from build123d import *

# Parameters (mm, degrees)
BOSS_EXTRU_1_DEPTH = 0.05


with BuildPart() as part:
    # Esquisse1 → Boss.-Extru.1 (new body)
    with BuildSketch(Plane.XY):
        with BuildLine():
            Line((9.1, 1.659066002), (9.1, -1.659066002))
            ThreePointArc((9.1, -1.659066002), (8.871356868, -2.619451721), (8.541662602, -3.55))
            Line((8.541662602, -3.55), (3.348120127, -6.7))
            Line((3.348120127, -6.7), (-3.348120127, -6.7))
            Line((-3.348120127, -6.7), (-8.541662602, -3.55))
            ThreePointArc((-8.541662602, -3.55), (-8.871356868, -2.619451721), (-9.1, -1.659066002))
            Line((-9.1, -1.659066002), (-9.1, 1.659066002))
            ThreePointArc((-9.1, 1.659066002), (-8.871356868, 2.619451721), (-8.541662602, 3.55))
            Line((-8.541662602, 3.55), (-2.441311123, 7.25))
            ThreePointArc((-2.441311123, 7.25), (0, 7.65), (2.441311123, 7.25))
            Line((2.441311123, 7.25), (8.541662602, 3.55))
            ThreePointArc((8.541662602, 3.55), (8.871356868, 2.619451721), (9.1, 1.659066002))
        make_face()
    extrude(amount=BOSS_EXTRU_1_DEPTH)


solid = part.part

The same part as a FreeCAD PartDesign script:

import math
import FreeCAD as App
import Part
import Sketcher

V = App.Vector
Q = App.Units.Quantity

doc = App.newDocument("Part")
body = doc.addObject("PartDesign::Body", "Body")

sketch1 = body.newObject("Sketcher::SketchObject", "Sketch")
sketch1.AttachmentSupport = (doc.getObject("XY_Plane"), [""])
sketch1.MapMode = "FlatFace"
sketch1.addGeometry([
    Part.LineSegment(V(9.1, -1.7, 0), V(9.1, 1.7, 0)),
    Part.ArcOfCircle(Part.Circle(V(0, 0, 0), V(0, 0, 1), 9.3), math.radians(10.33), math.radians(22.57)),
    Part.LineSegment(V(8.5, 3.5, 0), V(2.4, 7.2, 0)),
    Part.ArcOfCircle(Part.Circle(V(0, 0, 0), V(0, 0, 1), 7.6), math.radians(71), math.radians(109)),
    Part.LineSegment(V(-2.4, 7.2, 0), V(-8.5, 3.5, 0)),
    Part.ArcOfCircle(Part.Circle(V(0, 0, 0), V(0, 0, 1), 9.3), math.radians(157.43), math.radians(169.67)),
    Part.LineSegment(V(-9.1, 1.7, 0), V(-9.1, -1.7, 0)),
    Part.ArcOfCircle(Part.Circle(V(0, 0, 0), V(0, 0, 1), 9.3), math.radians(-169.67), math.radians(-157.43)),
    Part.LineSegment(V(-8.5, -3.5, 0), V(-3.3, -6.7, 0)),
    Part.LineSegment(V(-3.3, -6.7, 0), V(3.3, -6.7, 0)),
    Part.LineSegment(V(3.3, -6.7, 0), V(8.5, -3.5, 0)),
    Part.ArcOfCircle(Part.Circle(V(0, 0, 0), V(0, 0, 1), 9.3), math.radians(-22.57), math.radians(-10.33)),
], False)
sketch1.addConstraint([
    Sketcher.Constraint("Coincident", 0, 2, 1, 1),
    Sketcher.Constraint("Coincident", 1, 2, 2, 1),
    Sketcher.Constraint("Coincident", 2, 2, 3, 1),
    Sketcher.Constraint("Coincident", 3, 2, 4, 1),
    Sketcher.Constraint("Coincident", 4, 2, 5, 1),
    Sketcher.Constraint("Coincident", 5, 2, 6, 1),
    Sketcher.Constraint("Coincident", 6, 2, 7, 1),
    Sketcher.Constraint("Coincident", 7, 2, 8, 1),
    Sketcher.Constraint("Coincident", 8, 2, 9, 1),
    Sketcher.Constraint("Coincident", 9, 2, 10, 1),
    Sketcher.Constraint("Coincident", 10, 2, 11, 1),
    Sketcher.Constraint("Coincident", 11, 2, 0, 1),
    Sketcher.Constraint("Vertical", 0),
    Sketcher.Constraint("Vertical", 6),
    Sketcher.Constraint("Horizontal", 9),
    Sketcher.Constraint("Coincident", 1, 3, -1, 1),
    Sketcher.Constraint("Coincident", 3, 3, -1, 1),
    Sketcher.Constraint("Coincident", 5, 3, -1, 1),
    Sketcher.Constraint("Coincident", 7, 3, -1, 1),
    Sketcher.Constraint("Coincident", 11, 3, -1, 1),
    Sketcher.Constraint("Equal", 1, 5),
    Sketcher.Constraint("Equal", 5, 7),
    Sketcher.Constraint("Equal", 7, 11),
    Sketcher.Constraint("Parallel", 2, 8),
    Sketcher.Constraint("Parallel", 4, 10),
    Sketcher.Constraint("Horizontal", 2, 2, 3, 2),
    Sketcher.Constraint("Horizontal", 1, 2, 4, 2),
    Sketcher.Constraint("Horizontal", 0, 2, 5, 2),
    Sketcher.Constraint("Horizontal", 7, 2, 10, 2),
    Sketcher.Constraint("Vertical", 4, 2, 7, 2),
    Sketcher.Constraint("Radius", 1, Q("9.25 mm")),
    Sketcher.Constraint("Radius", 3, Q("7.65 mm")),
    Sketcher.Constraint("DistanceX", -1, 1, 0, 2, Q("9.1 mm")),
    Sketcher.Constraint("DistanceY", 8, 2, -1, 1, Q("6.7 mm")),
    Sketcher.Constraint("DistanceY", 1, 2, 2, 2, Q("3.7 mm")),
    Sketcher.Constraint("DistanceY", 7, 2, 4, 2, Q("7.1 mm")),
])
pad1 = body.newObject("PartDesign::Pad", "Pad")
pad1.Profile = sketch1
pad1.Length = 0.05

doc.recompute()
